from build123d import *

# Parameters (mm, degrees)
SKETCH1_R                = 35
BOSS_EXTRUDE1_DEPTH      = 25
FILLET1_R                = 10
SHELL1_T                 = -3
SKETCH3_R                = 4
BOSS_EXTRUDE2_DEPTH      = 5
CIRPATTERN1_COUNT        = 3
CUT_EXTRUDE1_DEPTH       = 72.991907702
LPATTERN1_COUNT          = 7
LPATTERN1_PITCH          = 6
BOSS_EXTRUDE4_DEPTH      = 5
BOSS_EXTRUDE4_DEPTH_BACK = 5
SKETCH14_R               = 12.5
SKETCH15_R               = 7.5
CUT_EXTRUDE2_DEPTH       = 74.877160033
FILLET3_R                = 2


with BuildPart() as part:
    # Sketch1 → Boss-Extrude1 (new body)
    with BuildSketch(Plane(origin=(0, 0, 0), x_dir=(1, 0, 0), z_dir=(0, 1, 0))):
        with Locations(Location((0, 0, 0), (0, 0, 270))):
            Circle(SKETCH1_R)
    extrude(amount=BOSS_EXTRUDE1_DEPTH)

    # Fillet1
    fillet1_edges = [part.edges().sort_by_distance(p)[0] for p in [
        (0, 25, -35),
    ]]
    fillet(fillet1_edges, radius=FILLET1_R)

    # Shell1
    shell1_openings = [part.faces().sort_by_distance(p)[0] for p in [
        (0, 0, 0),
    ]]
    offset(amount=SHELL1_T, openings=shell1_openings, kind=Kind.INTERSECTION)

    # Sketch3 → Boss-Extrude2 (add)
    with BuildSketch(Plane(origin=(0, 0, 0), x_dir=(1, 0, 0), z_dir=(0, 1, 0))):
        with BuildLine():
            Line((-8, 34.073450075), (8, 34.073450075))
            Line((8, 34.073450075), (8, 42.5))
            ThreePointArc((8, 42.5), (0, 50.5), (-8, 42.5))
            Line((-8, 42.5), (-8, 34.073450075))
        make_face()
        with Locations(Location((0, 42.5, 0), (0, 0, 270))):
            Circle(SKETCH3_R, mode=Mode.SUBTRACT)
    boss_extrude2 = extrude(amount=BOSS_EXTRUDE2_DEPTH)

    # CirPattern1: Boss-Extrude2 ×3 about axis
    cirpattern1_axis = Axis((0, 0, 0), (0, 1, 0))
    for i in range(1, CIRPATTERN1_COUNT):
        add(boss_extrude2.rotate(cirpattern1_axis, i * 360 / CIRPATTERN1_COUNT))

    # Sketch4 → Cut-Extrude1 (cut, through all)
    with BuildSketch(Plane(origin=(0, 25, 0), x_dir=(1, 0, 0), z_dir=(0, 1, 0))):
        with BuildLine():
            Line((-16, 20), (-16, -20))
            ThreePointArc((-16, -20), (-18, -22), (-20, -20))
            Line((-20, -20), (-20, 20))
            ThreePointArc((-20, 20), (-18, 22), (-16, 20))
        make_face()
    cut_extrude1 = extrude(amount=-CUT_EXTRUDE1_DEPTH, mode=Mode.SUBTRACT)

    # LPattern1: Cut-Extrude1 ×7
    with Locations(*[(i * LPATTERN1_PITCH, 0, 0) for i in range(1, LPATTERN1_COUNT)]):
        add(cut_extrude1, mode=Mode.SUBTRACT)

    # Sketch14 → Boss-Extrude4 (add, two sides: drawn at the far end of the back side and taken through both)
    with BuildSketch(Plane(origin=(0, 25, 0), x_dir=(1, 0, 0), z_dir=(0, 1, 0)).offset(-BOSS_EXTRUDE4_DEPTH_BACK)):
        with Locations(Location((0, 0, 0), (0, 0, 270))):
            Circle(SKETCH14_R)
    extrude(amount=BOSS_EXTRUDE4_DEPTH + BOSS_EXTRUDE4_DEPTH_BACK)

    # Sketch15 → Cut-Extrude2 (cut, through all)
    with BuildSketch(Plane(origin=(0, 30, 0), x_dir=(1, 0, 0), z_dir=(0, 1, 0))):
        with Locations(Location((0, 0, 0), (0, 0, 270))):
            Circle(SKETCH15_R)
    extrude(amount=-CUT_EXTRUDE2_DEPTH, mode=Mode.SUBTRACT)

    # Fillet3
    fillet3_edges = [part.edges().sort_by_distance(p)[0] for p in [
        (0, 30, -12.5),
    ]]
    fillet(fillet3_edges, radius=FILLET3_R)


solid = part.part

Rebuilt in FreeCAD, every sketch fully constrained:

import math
import FreeCAD as App
import Part
import Sketcher
from FreeCAD import Vector


def edges_at(feature, points):
    """Names of the edges that pass closest to the given points."""
    edges = feature.Shape.Edges
    near = lambda p: min(range(len(edges)), key=lambda i: edges[i].distToShape(Part.Vertex(*p))[0])
    return sorted({f"Edge{near(p) + 1}" for p in points})


def faces_at(feature, points):
    """Names of the faces that lie closest to the given points."""
    faces = feature.Shape.Faces
    near = lambda p: min(range(len(faces)), key=lambda i: faces[i].distToShape(Part.Vertex(*p))[0])
    return sorted({f"Face{near(p) + 1}" for p in points})

doc = App.newDocument("Part")
params = doc.addObject("Spreadsheet::Sheet", "Params")
for row, (alias, value) in enumerate([
    ("sketch1_diameter", "70 mm"),
    ("pad1_length", "25 mm"),
    ("fillet_radius", "10 mm"),
    ("thickness_wall", "3 mm"),
    ("sketch2_diameter", "8 mm"),
    ("sketch2_radius", "8 mm"),
    ("pad2_length", "5 mm"),
    ("sketch3_radius", "2 mm"),
    ("sketch3_height", "40 mm"),
    ("linearpattern_pitch", "6 mm"),
    ("sketch4_diameter", "25 mm"),
    ("pad3_length", "5 mm"),
    ("pad3_length2", "5 mm"),
    ("sketch5_diameter", "15 mm"),
    ("fillet2_radius", "2 mm"),
], start=1):
    params.set(f"A{row}", alias)
    params.set(f"B{row}", "=" + value)
    params.setAlias(f"B{row}", alias)

body = doc.addObject("PartDesign::Body", "Body")

# Sketch on XZ plane
sketch1 = doc.addObject("Sketcher::SketchObject", "Sketch")
body.addObject(sketch1)
sketch1.AttachmentSupport = (doc.XZ_Plane, [""])
sketch1.MapMode = "FlatFace"
sketch1.addGeometry(Part.Circle(Vector(0, 0, 0), Vector(0, 0, 1), 35), False)
sketch1.addConstraint(Sketcher.Constraint("Coincident", 0, 3, -1, 1))
sketch1.addConstraint(Sketcher.Constraint("Diameter", 0, 70.0))
sketch1.setExpression("Constraints[1]", "Params.sketch1_diameter")
pad1 = doc.addObject("PartDesign::Pad", "Pad")
body.addObject(pad1)
pad1.Profile = sketch1
pad1.setExpression("Length", "Params.pad1_length")
pad1.Reversed = True
doc.recompute()

fillet = doc.addObject("PartDesign::Fillet", "Fillet")
body.addObject(fillet)
fillet.Base = (pad1, edges_at(pad1, [(0, 25, -35)]))
fillet.setExpression("Radius", "Params.fillet_radius")
doc.recompute()

thickness = doc.addObject("PartDesign::Thickness", "Thickness")
body.addObject(thickness)
thickness.Base = (fillet, faces_at(fillet, [(0, 0, 0)]))
thickness.setExpression("Value", "Params.thickness_wall")
thickness.Reversed = True
thickness.Join = "Intersection"

# Sketch on XZ plane
sketch2 = doc.addObject("Sketcher::SketchObject", "Sketch001")
body.addObject(sketch2)
sketch2.AttachmentSupport = (doc.XZ_Plane, [""])
sketch2.MapMode = "FlatFace"
sketch2.addGeometry(Part.LineSegment(Vector(-8, -34.1, 0), Vector(8, -34.1, 0)), False)
sketch2.addGeometry(Part.LineSegment(Vector(8, -34.1, 0), Vector(8, -42.5, 0)), False)
sketch2.addGeometry(Part.ArcOfCircle(Part.Circle(Vector(0, -42.5, 0), Vector(0, 0, 1), 8), math.radians(180), math.radians(360)), False)
sketch2.addGeometry(Part.LineSegment(Vector(-8, -42.5, 0), Vector(-8, -34.1, 0)), False)
sketch2.addGeometry(Part.Circle(Vector(0, -42.5, 0), Vector(0, 0, 1), 4), False)
sketch2.addConstraint(Sketcher.Constraint("Coincident", 0, 2, 1, 1))
sketch2.addConstraint(Sketcher.Constraint("Tangent", 1, 2, 2, 2))
sketch2.addConstraint(Sketcher.Constraint("Tangent", 2, 1, 3, 1))
sketch2.addConstraint(Sketcher.Constraint("Coincident", 3, 2, 0, 1))
sketch2.addConstraint(Sketcher.Constraint("Horizontal", 0))
sketch2.addConstraint(Sketcher.Constraint("Vertical", 1))
sketch2.addConstraint(Sketcher.Constraint("Vertical", 3))
sketch2.addConstraint(Sketcher.Constraint("Coincident", 4, 3, 2, 3))
sketch2.addConstraint(Sketcher.Constraint("PointOnObject", 2, 3, -2))
sketch2.addConstraint(Sketcher.Constraint("Diameter", 4, 8.0))
sketch2.addConstraint(Sketcher.Constraint("Radius", 2, 8.0))
sketch2.addConstraint(Sketcher.Constraint("DistanceY", 2, 3, -1, 1, 42.5))
sketch2.addConstraint(Sketcher.Constraint("DistanceY", 1, 2, 1, 1, 8.42655))
sketch2.setExpression("Constraints[9]", "Params.sketch2_diameter")
sketch2.setExpression("Constraints[10]", "Params.sketch2_radius")
pad2 = doc.addObject("PartDesign::Pad", "Pad001")
body.addObject(pad2)
pad2.Profile = sketch2
pad2.setExpression("Length", "Params.pad2_length")
pad2.Reversed = True
doc.recompute()

polarpattern = doc.addObject("PartDesign::PolarPattern", "PolarPattern")
body.addObject(polarpattern)
polarpattern.Originals = [pad2]
polarpattern.Axis = (doc.Y_Axis, [""])
polarpattern.Angle = 360
polarpattern.Occurrences = 3
body.Tip = polarpattern

# Sketch on XZ plane
sketch3 = doc.addObject("Sketcher::SketchObject", "Sketch002")
body.addObject(sketch3)
sketch3.AttachmentSupport = (doc.XZ_Plane, [""])
sketch3.MapMode = "FlatFace"
sketch3.AttachmentOffset = App.Placement(Vector(0, 0, -25), App.Rotation())
sketch3.addGeometry(Part.LineSegment(Vector(-16, 20, 0), Vector(-16, -20, 0)), False)
sketch3.addGeometry(Part.ArcOfCircle(Part.Circle(Vector(-18, -20, 0), Vector(0, 0, 1), 2), math.radians(180), math.radians(360)), False)
sketch3.addGeometry(Part.LineSegment(Vector(-20, -20, 0), Vector(-20, 20, 0)), False)
sketch3.addGeometry(Part.ArcOfCircle(Part.Circle(Vector(-18, 20, 0), Vector(0, 0, 1), 2), math.radians(0), math.radians(180)), False)
sketch3.addConstraint(Sketcher.Constraint("Tangent", 0, 2, 1, 2))
sketch3.addConstraint(Sketcher.Constraint("Tangent", 1, 1, 2, 1))
sketch3.addConstraint(Sketcher.Constraint("Tangent", 2, 2, 3, 2))
sketch3.addConstraint(Sketcher.Constraint("Tangent", 3, 1, 0, 1))
sketch3.addConstraint(Sketcher.Constraint("Vertical", 0))
sketch3.addConstraint(Sketcher.Constraint("Vertical", 2))
sketch3.addConstraint(Sketcher.Constraint("Radius", 1, 2.0))
sketch3.addConstraint(Sketcher.Constraint("DistanceY", 0, 2, 0, 1, 40.0))
sketch3.addConstraint(Sketcher.Constraint("DistanceX", 1, 3, -1, 1, 18.0))
sketch3.addConstraint(Sketcher.Constraint("DistanceY", 1, 3, -1, 1, 20.0))
sketch3.setExpression("Constraints[6]", "Params.sketch3_radius")
sketch3.setExpression("Constraints[7]", "Params.sketch3_height")
pocket1 = doc.addObject("PartDesign::Pocket", "Pocket")
body.addObject(pocket1)
pocket1.Profile = sketch3
pocket1.Type = "ThroughAll"
pocket1.Reversed = True
doc.recompute()

linearpattern = doc.addObject("PartDesign::LinearPattern", "LinearPattern")
body.addObject(linearpattern)
linearpattern.Originals = [pocket1]
linearpattern.Direction = (doc.X_Axis, [""])
linearpattern.Mode = "offset"
linearpattern.setExpression("Offset", "Params.linearpattern_pitch")
linearpattern.Occurrences = 7
body.Tip = linearpattern

# Sketch on XZ plane
sketch4 = doc.addObject("Sketcher::SketchObject", "Sketch003")
body.addObject(sketch4)
sketch4.AttachmentSupport = (doc.XZ_Plane, [""])
sketch4.MapMode = "FlatFace"
sketch4.AttachmentOffset = App.Placement(Vector(0, 0, -25), App.Rotation())
sketch4.addGeometry(Part.Circle(Vector(0, 0, 0), Vector(0, 0, 1), 12), False)
sketch4.addConstraint(Sketcher.Constraint("Coincident", 0, 3, -1, 1))
sketch4.addConstraint(Sketcher.Constraint("Diameter", 0, 25.0))
sketch4.setExpression("Constraints[1]", "Params.sketch4_diameter")
pad3 = doc.addObject("PartDesign::Pad", "Pad002")
body.addObject(pad3)
pad3.Profile = sketch4
pad3.Type = "TwoLengths"
pad3.setExpression("Length", "Params.pad3_length")
pad3.setExpression("Length2", "Params.pad3_length2")
pad3.Reversed = True

# Sketch on XZ plane
sketch5 = doc.addObject("Sketcher::SketchObject", "Sketch004")
body.addObject(sketch5)
sketch5.AttachmentSupport = (doc.XZ_Plane, [""])
sketch5.MapMode = "FlatFace"
sketch5.AttachmentOffset = App.Placement(Vector(0, 0, -30), App.Rotation())
sketch5.addGeometry(Part.Circle(Vector(0, 0, 0), Vector(0, 0, 1), 8), False)
sketch5.addConstraint(Sketcher.Constraint("Coincident", 0, 3, -1, 1))
sketch5.addConstraint(Sketcher.Constraint("Diameter", 0, 15.0))
sketch5.setExpression("Constraints[1]", "Params.sketch5_diameter")
pocket2 = doc.addObject("PartDesign::Pocket", "Pocket001")
body.addObject(pocket2)
pocket2.Profile = sketch5
pocket2.Type = "ThroughAll"
pocket2.Reversed = True
doc.recompute()

fillet2 = doc.addObject("PartDesign::Fillet", "Fillet001")
body.addObject(fillet2)
fillet2.Base = (pocket2, edges_at(pocket2, [(0, 30, -12.5)]))
fillet2.setExpression("Radius", "Params.fillet2_radius")

doc.recompute()
